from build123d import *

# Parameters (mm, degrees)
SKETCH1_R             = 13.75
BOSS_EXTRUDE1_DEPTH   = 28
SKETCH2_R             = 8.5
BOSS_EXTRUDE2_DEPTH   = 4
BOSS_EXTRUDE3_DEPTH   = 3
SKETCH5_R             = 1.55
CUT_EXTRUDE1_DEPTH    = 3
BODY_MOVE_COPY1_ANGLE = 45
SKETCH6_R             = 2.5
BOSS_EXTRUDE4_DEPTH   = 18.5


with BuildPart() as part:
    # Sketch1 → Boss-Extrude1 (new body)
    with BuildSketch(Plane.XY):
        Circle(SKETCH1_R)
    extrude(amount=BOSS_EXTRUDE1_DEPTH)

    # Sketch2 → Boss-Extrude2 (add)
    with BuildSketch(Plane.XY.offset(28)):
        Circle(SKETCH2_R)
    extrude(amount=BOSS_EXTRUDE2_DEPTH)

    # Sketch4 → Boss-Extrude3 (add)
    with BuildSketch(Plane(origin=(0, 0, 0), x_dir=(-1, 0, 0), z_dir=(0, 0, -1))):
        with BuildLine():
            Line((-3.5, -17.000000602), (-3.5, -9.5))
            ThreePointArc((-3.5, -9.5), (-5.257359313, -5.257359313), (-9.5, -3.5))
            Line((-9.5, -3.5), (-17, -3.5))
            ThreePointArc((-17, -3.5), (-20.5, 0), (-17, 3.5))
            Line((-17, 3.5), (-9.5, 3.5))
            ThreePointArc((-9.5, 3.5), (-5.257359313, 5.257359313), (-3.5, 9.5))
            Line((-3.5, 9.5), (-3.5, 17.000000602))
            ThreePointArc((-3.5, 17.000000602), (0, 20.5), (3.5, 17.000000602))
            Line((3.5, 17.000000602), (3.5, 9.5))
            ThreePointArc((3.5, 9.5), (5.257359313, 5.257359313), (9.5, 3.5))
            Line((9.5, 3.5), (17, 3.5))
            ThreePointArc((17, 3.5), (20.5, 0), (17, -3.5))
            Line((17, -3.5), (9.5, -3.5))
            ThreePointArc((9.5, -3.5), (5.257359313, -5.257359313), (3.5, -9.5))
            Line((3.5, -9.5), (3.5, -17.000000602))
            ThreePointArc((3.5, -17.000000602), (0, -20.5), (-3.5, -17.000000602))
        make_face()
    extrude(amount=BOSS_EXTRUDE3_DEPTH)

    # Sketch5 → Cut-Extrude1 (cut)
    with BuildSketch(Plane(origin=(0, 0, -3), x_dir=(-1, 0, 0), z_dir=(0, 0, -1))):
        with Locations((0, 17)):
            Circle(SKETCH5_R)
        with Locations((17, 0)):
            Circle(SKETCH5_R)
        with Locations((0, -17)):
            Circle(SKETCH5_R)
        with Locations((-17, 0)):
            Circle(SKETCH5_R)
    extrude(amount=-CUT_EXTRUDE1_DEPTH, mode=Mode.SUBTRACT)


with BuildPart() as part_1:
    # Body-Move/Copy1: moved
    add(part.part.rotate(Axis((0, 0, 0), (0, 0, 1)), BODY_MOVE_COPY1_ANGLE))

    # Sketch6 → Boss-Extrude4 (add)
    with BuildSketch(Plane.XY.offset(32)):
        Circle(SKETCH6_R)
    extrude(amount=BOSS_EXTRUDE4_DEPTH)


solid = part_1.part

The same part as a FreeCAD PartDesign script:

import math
import FreeCAD as App
import Part
import Sketcher
from FreeCAD import Vector

doc = App.newDocument("Part")
body = doc.addObject("PartDesign::Body", "Body")

# Sketch on XY plane
sketch1 = doc.addObject("Sketcher::SketchObject", "Sketch")
body.addObject(sketch1)
sketch1.AttachmentSupport = (doc.XY_Plane, [""])
sketch1.MapMode = "FlatFace"
sketch1.addGeometry(Part.Circle(Vector(0, 0, 0), Vector(0, 0, 1), 14), False)
sketch1.addConstraint([
    Sketcher.Constraint("Coincident", 0, 3, -1, 1),
    Sketcher.Constraint("Diameter", 0, 27.5),
])
pad1 = doc.addObject("PartDesign::Pad", "Pad")
body.addObject(pad1)
pad1.Profile = sketch1
pad1.Length = 28

# Sketch on XY plane
sketch2 = doc.addObject("Sketcher::SketchObject", "Sketch001")
body.addObject(sketch2)
sketch2.AttachmentSupport = (doc.XY_Plane, [""])
sketch2.MapMode = "FlatFace"
sketch2.AttachmentOffset = App.Placement(Vector(0, 0, 28), App.Rotation())
sketch2.addGeometry(Part.Circle(Vector(0, 0, 0), Vector(0, 0, 1), 8), False)
sketch2.addConstraint([
    Sketcher.Constraint("Coincident", 0, 3, -1, 1),
    Sketcher.Constraint("Diameter", 0, 17.0),
])
pad2 = doc.addObject("PartDesign::Pad", "Pad001")
body.addObject(pad2)
pad2.Profile = sketch2
pad2.Length = 4

# Sketch on XY plane
sketch3 = doc.addObject("Sketcher::SketchObject", "Sketch002")
body.addObject(sketch3)
sketch3.AttachmentSupport = (doc.XY_Plane, [""])
sketch3.MapMode = "FlatFace"
sketch3.addGeometry([
    Part.LineSegment(Vector(3.5, -9.5, 0), Vector(3.5, -17, 0)),  # 0
    Part.ArcOfCircle(Part.Circle(Vector(0, -17, 0), Vector(0, 0, 1), 3.5), math.radians(-180), math.radians(0)),  # 1
    Part.LineSegment(Vector(-3.5, -17, 0), Vector(-3.5, -9.5, 0)),  # 2
    Part.ArcOfCircle(Part.Circle(Vector(-9.5, -9.5, 0), Vector(0, 0, 1), 6), math.radians(0), math.radians(90)),  # 3
    Part.LineSegment(Vector(-9.5, -3.5, 0), Vector(-17, -3.5, 0)),  # 4
    Part.ArcOfCircle(Part.Circle(Vector(-17, 0, 0), Vector(0, 0, 1), 3.5), math.radians(90), math.radians(270)),  # 5
    Part.LineSegment(Vector(-17, 3.5, 0), Vector(-9.5, 3.5, 0)),  # 6
    Part.ArcOfCircle(Part.Circle(Vector(-9.5, 9.5, 0), Vector(0, 0, 1), 6), math.radians(-90), math.radians(0)),  # 7
    Part.LineSegment(Vector(-3.5, 9.5, 0), Vector(-3.5, 17, 0)),  # 8
    Part.ArcOfCircle(Part.Circle(Vector(0, 17, 0), Vector(0, 0, 1), 3.5), math.radians(0), math.radians(180)),  # 9
    Part.LineSegment(Vector(3.5, 17, 0), Vector(3.5, 9.5, 0)),  # 10
    Part.ArcOfCircle(Part.Circle(Vector(9.5, 9.5, 0), Vector(0, 0, 1), 6), math.radians(180), math.radians(270)),  # 11
    Part.LineSegment(Vector(9.5, 3.5, 0), Vector(17, 3.5, 0)),  # 12
    Part.ArcOfCircle(Part.Circle(Vector(17, 0, 0), Vector(0, 0, 1), 3.5), math.radians(-90), math.radians(90)),  # 13
    Part.LineSegment(Vector(17, -3.5, 0), Vector(9.5, -3.5, 0)),  # 14
    Part.ArcOfCircle(Part.Circle(Vector(9.5, -9.5, 0), Vector(0, 0, 1), 6), math.radians(90), math.radians(180)),  # 15
], False)
sketch3.addConstraint([
    Sketcher.Constraint("Tangent", 0, 2, 1, 2),
    Sketcher.Constraint("Tangent", 1, 1, 2, 1),
    Sketcher.Constraint("Tangent", 2, 2, 3, 1),
    Sketcher.Constraint("Tangent", 3, 2, 4, 1),
    Sketcher.Constraint("Tangent", 4, 2, 5, 2),
    Sketcher.Constraint("Tangent", 5, 1, 6, 1),
    Sketcher.Constraint("Tangent", 6, 2, 7, 1),
    Sketcher.Constraint("Tangent", 7, 2, 8, 1),
    Sketcher.Constraint("Tangent", 8, 2, 9, 2),
    Sketcher.Constraint("Tangent", 9, 1, 10, 1),
    Sketcher.Constraint("Tangent", 10, 2, 11, 1),
    Sketcher.Constraint("Tangent", 11, 2, 12, 1),
    Sketcher.Constraint("Tangent", 12, 2, 13, 2),
    Sketcher.Constraint("Tangent", 13, 1, 14, 1),
    Sketcher.Constraint("Tangent", 14, 2, 15, 1),
    Sketcher.Constraint("Tangent", 15, 2, 0, 1),
    Sketcher.Constraint("Vertical", 0),
    Sketcher.Constraint("Vertical", 2),
    Sketcher.Constraint("Horizontal", 4),
    Sketcher.Constraint("Horizontal", 6),
    Sketcher.Constraint("Vertical", 8),
    Sketcher.Constraint("Vertical", 10),
    Sketcher.Constraint("Horizontal", 12),
    Sketcher.Constraint("Horizontal", 14),
    Sketcher.Constraint("Equal", 1, 5),
    Sketcher.Constraint("Equal", 3, 7),
    Sketcher.Constraint("Equal", 5, 9),
    Sketcher.Constraint("Equal", 7, 11),
    Sketcher.Constraint("Equal", 9, 13),
    Sketcher.Constraint("Equal", 11, 15),
    Sketcher.Constraint("Symmetric", 1, 3, 9, 3, -1, 1),
    Sketcher.Constraint("Symmetric", 5, 3, 13, 3, -1, 1),
    Sketcher.Constraint("Symmetric", 7, 3, 11, 3, -2),
    Sketcher.Constraint("Equal", 14, 0),
    Sketcher.Constraint("Radius", 3, 6.0),
    Sketcher.Constraint("Radius", 1, 3.5),
    Sketcher.Constraint("DistanceX", 4, 2, 4, 1, 7.5),
])
pad3 = doc.addObject("PartDesign::Pad", "Pad002")
body.addObject(pad3)
pad3.Profile = sketch3
pad3.Length = 3
pad3.Reversed = True

# Sketch on XY plane
sketch4 = doc.addObject("Sketcher::SketchObject", "Sketch003")
body.addObject(sketch4)
sketch4.AttachmentSupport = (doc.XY_Plane, [""])
sketch4.MapMode = "FlatFace"
sketch4.AttachmentOffset = App.Placement(Vector(0, 0, -3), App.Rotation())
sketch4.addGeometry([
    Part.Circle(Vector(0, 17, 0), Vector(0, 0, 1), 1.6),
    Part.Circle(Vector(-17, 0, 0), Vector(0, 0, 1), 1.6),
    Part.Circle(Vector(0, -17, 0), Vector(0, 0, 1), 1.6),
    Part.Circle(Vector(17, 0, 0), Vector(0, 0, 1), 1.6),
], False)
sketch4.addConstraint([
    Sketcher.Constraint("Equal", 0, 1),
    Sketcher.Constraint("Equal", 1, 2),
    Sketcher.Constraint("Equal", 2, 3),
    Sketcher.Constraint("Symmetric", 0, 3, 2, 3, -1, 1),
    Sketcher.Constraint("Symmetric", 1, 3, 3, 3, -1, 1),
    Sketcher.Constraint("PointOnObject", 0, 3, -2),
    Sketcher.Constraint("PointOnObject", 1, 3, -1),
    Sketcher.Constraint("Diameter", 0, 3.1),
    Sketcher.Constraint("DistanceY", -1, 1, 0, 3, 17.0),
    Sketcher.Constraint("DistanceX", 1, 3, -1, 1, 17.0),
])
pocket1 = doc.addObject("PartDesign::Pocket", "Pocket")
body.addObject(pocket1)
pocket1.Profile = sketch4
pocket1.Length = 3
pocket1.Reversed = True
body2 = doc.addObject("PartDesign::Body", "Body001")
doc.recompute()

body.Placement = App.Placement(Vector(0, 0, 0), App.Rotation(Vector(0, 0, 1), 45))
boolean = doc.addObject("PartDesign::Boolean", "Boolean")
body2.addObject(boolean)
boolean.Type = "Fuse"
boolean.addObjects([body])

# Sketch on XY plane
sketch5 = doc.addObject("Sketcher::SketchObject", "Sketch004")
body2.addObject(sketch5)
sketch5.AttachmentSupport = (doc.getObject("XY_Plane001"), [""])
sketch5.MapMode = "FlatFace"
sketch5.AttachmentOffset = App.Placement(Vector(0, 0, 32), App.Rotation())
sketch5.addGeometry(Part.Circle(Vector(0, 0, 0), Vector(0, 0, 1), 2.5), False)
sketch5.addConstraint([
    Sketcher.Constraint("Coincident", 0, 3, -1, 1),
    Sketcher.Constraint("Diameter", 0, 5.0),
])
pad4 = doc.addObject("PartDesign::Pad", "Pad003")
body2.addObject(pad4)
pad4.Profile = sketch5
pad4.Length = 18.5

doc.recompute()
